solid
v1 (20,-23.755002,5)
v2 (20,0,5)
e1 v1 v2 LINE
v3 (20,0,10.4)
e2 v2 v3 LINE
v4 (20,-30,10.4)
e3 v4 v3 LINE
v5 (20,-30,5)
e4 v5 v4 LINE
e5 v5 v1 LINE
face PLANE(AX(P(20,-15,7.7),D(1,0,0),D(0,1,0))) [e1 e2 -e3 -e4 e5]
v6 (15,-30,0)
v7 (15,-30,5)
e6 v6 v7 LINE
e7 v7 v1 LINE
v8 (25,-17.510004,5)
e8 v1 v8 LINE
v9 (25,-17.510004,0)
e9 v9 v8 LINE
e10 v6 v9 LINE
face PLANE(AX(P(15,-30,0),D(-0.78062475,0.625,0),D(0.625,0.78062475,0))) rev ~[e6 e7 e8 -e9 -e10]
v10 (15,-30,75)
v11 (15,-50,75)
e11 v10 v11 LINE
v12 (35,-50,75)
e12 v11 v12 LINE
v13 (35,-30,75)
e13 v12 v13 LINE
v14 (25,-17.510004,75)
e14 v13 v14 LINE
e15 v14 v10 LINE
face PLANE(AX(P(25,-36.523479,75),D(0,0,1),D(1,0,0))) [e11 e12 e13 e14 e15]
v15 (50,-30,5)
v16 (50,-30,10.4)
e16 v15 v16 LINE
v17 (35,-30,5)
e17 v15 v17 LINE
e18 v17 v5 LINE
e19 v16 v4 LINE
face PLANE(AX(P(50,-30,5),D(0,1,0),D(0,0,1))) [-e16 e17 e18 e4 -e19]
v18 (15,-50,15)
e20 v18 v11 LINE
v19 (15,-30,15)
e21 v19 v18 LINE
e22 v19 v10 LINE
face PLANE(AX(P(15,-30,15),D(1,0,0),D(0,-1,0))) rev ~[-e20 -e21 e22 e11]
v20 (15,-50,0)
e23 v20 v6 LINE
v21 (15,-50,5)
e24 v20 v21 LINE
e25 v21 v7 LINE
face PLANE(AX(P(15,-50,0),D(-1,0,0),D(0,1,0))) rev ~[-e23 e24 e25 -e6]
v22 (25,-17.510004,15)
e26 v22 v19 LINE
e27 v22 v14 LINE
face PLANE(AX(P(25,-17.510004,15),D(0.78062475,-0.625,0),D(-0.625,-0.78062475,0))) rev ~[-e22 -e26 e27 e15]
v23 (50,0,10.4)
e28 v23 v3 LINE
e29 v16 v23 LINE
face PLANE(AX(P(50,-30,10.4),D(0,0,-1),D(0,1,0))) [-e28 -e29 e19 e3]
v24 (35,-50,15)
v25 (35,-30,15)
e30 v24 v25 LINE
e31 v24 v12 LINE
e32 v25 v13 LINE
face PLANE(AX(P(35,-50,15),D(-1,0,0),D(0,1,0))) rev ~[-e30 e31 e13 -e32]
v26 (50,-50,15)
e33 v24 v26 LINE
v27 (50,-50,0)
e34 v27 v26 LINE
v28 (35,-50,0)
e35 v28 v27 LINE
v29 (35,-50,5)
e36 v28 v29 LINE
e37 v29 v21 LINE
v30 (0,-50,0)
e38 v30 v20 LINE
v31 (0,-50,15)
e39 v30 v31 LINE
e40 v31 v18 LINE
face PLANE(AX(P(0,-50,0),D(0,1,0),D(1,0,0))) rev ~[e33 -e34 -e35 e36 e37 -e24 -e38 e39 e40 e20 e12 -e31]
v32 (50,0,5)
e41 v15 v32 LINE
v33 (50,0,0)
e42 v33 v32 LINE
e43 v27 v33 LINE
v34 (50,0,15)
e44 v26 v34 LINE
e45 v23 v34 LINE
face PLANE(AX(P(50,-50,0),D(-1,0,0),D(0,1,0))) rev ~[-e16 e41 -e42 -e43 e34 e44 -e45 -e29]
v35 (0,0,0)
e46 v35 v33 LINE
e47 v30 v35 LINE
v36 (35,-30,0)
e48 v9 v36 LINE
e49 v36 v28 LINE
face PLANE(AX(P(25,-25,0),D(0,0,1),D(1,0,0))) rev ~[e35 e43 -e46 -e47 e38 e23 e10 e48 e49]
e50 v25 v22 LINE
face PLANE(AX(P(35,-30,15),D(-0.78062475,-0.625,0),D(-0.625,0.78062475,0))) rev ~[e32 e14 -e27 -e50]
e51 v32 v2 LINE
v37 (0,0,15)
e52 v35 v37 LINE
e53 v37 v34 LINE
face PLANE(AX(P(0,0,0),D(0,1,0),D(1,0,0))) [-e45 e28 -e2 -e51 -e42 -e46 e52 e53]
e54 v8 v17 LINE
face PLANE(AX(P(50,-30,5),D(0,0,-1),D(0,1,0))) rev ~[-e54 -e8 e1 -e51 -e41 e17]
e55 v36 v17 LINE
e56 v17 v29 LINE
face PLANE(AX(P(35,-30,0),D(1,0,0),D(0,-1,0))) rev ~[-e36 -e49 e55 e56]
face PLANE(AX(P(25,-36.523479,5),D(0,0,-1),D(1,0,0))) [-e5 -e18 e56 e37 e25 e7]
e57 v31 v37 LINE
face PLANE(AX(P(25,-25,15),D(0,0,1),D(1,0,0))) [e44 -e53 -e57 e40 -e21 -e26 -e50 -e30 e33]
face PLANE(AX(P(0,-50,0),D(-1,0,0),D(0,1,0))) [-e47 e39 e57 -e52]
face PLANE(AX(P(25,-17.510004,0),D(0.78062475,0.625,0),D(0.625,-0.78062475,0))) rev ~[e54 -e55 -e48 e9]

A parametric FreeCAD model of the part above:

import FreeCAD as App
import Part
import Sketcher

doc = App.newDocument("Part")
params = doc.addObject("Spreadsheet::Sheet", "Params")
for row, (alias, value) in enumerate([
    ("sketch1_width", "50 mm"),
    ("pad1_length", "15 mm"),
    ("sketch2_width", "20 mm"),
    ("sketch2_length", "16 mm"),
    ("pad2_length", "60 mm"),
    ("sketch3_width", "20 mm"),
    ("sketch3_length", "16 mm"),
    ("pocket1_length", "5 mm"),
    ("sketch4_width", "30 mm"),
    ("sketch4_height", "5.4 mm"),
    ("pocket2_length", "30 mm"),
], start=1):
    params.set(f"A{row}", alias)
    params.set(f"B{row}", "=" + value)
    params.setAlias(f"B{row}", alias)

body = doc.addObject("PartDesign::Body", "Body")

# Sketch on XY plane
sketch1 = body.newObject("Sketcher::SketchObject", "Sketch")
sketch1.AttachmentSupport = (doc.getObject("XY_Plane"), [""])
sketch1.MapMode = "FlatFace"
sketch1.addGeometry([
    Part.LineSegment(App.Vector(0, 0, 0), App.Vector(0, -50, 0)),
    Part.LineSegment(App.Vector(0, -50, 0), App.Vector(50, -50, 0)),
    Part.LineSegment(App.Vector(50, -50, 0), App.Vector(50, 0, 0)),
    Part.LineSegment(App.Vector(50, 0, 0), App.Vector(0, 0, 0)),
], False)
sketch1.addConstraint([
    Sketcher.Constraint("Coincident", 0, 2, 1, 1),
    Sketcher.Constraint("Coincident", 1, 2, 2, 1),
    Sketcher.Constraint("Coincident", 2, 2, 3, 1),
    Sketcher.Constraint("Coincident", 3, 2, 0, 1),
    Sketcher.Constraint("Vertical", 0),
    Sketcher.Constraint("Horizontal", 1),
    Sketcher.Constraint("Vertical", 2),
    Sketcher.Constraint("Horizontal", 3),
    Sketcher.Constraint("Coincident", 3, 2, -1, 1),
    Sketcher.Constraint("Equal", 3, 0),
    Sketcher.Constraint("DistanceX", 1, 1, 1, 2, 50.0),
])
sketch1.setExpression("Constraints[10]", "Params.sketch1_width")
pad1 = body.newObject("PartDesign::Pad", "Pad")
pad1.Profile = sketch1
pad1.setExpression("Length", "Params.pad1_length")

# Sketch on XY plane
sketch2 = body.newObject("Sketcher::SketchObject", "Sketch001")
sketch2.AttachmentSupport = (doc.getObject("XY_Plane"), [""])
sketch2.MapMode = "FlatFace"
sketch2.AttachmentOffset = App.Placement(App.Vector(0, 0, 15), App.Rotation())
sketch2.addGeometry([
    Part.LineSegment(App.Vector(15, -30, 0), App.Vector(15, -50, 0)),  # 0
    Part.LineSegment(App.Vector(15, -50, 0), App.Vector(35, -50, 0)),  # 1
    Part.LineSegment(App.Vector(35, -50, 0), App.Vector(35, -30, 0)),  # 2
    Part.LineSegment(App.Vector(35, -30, 0), App.Vector(25, -18, 0)),  # 3
    Part.LineSegment(App.Vector(25, -18, 0), App.Vector(15, -30, 0)),  # 4
], False)
sketch2.addConstraint([
    Sketcher.Constraint("Coincident", 0, 2, 1, 1),
    Sketcher.Constraint("Coincident", 1, 2, 2, 1),
    Sketcher.Constraint("Coincident", 2, 2, 3, 1),
    Sketcher.Constraint("Coincident", 3, 2, 4, 1),
    Sketcher.Constraint("Coincident", 4, 2, 0, 1),
    Sketcher.Constraint("Vertical", 0),
    Sketcher.Constraint("Horizontal", 1),
    Sketcher.Constraint("Vertical", 2),
    Sketcher.Constraint("Horizontal", 2, 2, 4, 2),
    Sketcher.Constraint("Equal", 1, 0),
    Sketcher.Constraint("Equal", 3, 4),
    Sketcher.Constraint("DistanceX", 1, 1, 1, 2, 20.0),
    Sketcher.Constraint("Distance", 3, 16.0),
    Sketcher.Constraint("DistanceX", -1, 1, 0, 2, 15.0),
    Sketcher.Constraint("DistanceY", 0, 2, -1, 1, 50.0),
])
sketch2.setExpression("Constraints[11]", "Params.sketch2_width")
sketch2.setExpression("Constraints[12]", "Params.sketch2_length")
pad2 = body.newObject("PartDesign::Pad", "Pad001")
pad2.Profile = sketch2
pad2.setExpression("Length", "Params.pad2_length")

# Sketch on XY plane
sketch3 = body.newObject("Sketcher::SketchObject", "Sketch002")
sketch3.AttachmentSupport = (doc.getObject("XY_Plane"), [""])
sketch3.MapMode = "FlatFace"
sketch3.addGeometry([
    Part.LineSegment(App.Vector(35, -50, 0), App.Vector(15, -50, 0)),  # 0
    Part.LineSegment(App.Vector(15, -50, 0), App.Vector(15, -30, 0)),  # 1
    Part.LineSegment(App.Vector(15, -30, 0), App.Vector(25, -18, 0)),  # 2
    Part.LineSegment(App.Vector(25, -18, 0), App.Vector(35, -30, 0)),  # 3
    Part.LineSegment(App.Vector(35, -30, 0), App.Vector(35, -50, 0)),  # 4
], False)
sketch3.addConstraint([
    Sketcher.Constraint("Coincident", 0, 2, 1, 1),
    Sketcher.Constraint("Coincident", 1, 2, 2, 1),
    Sketcher.Constraint("Coincident", 2, 2, 3, 1),
    Sketcher.Constraint("Coincident", 3, 2, 4, 1),
    Sketcher.Constraint("Coincident", 4, 2, 0, 1),
    Sketcher.Constraint("Horizontal", 0),
    Sketcher.Constraint("Vertical", 1),
    Sketcher.Constraint("Vertical", 4),
    Sketcher.Constraint("Horizontal", 1, 2, 3, 2),
    Sketcher.Constraint("Equal", 0, 1),
    Sketcher.Constraint("Equal", 2, 3),
    Sketcher.Constraint("DistanceX", 0, 2, 0, 1, 20.0),
    Sketcher.Constraint("Distance", 2, 16.0),
    Sketcher.Constraint("DistanceX", -1, 1, 0, 2, 15.0),
    Sketcher.Constraint("DistanceY", 0, 2, -1, 1, 50.0),
])
sketch3.setExpression("Constraints[11]", "Params.sketch3_width")
sketch3.setExpression("Constraints[12]", "Params.sketch3_length")
pocket1 = body.newObject("PartDesign::Pocket", "Pocket")
pocket1.Profile = sketch3
pocket1.setExpression("Length", "Params.pocket1_length")
pocket1.Reversed = True

# Sketch on YZ plane
sketch4 = body.newObject("Sketcher::SketchObject", "Sketch003")
sketch4.AttachmentSupport = (doc.getObject("YZ_Plane"), [""])
sketch4.MapMode = "FlatFace"
sketch4.AttachmentOffset = App.Placement(App.Vector(0, 0, 50), App.Rotation())
sketch4.addGeometry([
    Part.LineSegment(App.Vector(-30, 10, 0), App.Vector(-30, 5, 0)),
    Part.LineSegment(App.Vector(-30, 5, 0), App.Vector(0, 5, 0)),
    Part.LineSegment(App.Vector(0, 5, 0), App.Vector(0, 10, 0)),
    Part.LineSegment(App.Vector(0, 10, 0), App.Vector(-30, 10, 0)),
], False)
sketch4.addConstraint([
    Sketcher.Constraint("Coincident", 0, 2, 1, 1),
    Sketcher.Constraint("Coincident", 1, 2, 2, 1),
    Sketcher.Constraint("Coincident", 2, 2, 3, 1),
    Sketcher.Constraint("Coincident", 3, 2, 0, 1),
    Sketcher.Constraint("Vertical", 0),
    Sketcher.Constraint("Horizontal", 1),
    Sketcher.Constraint("Vertical", 2),
    Sketcher.Constraint("Horizontal", 3),
    Sketcher.Constraint("PointOnObject", 1, 2, -2),
    Sketcher.Constraint("DistanceX", 1, 1, 1, 2, 30.0),
    Sketcher.Constraint("DistanceY", 0, 2, 0, 1, 5.4),
    Sketcher.Constraint("DistanceY", -1, 1, 0, 2, 5.0),
])
sketch4.setExpression("Constraints[9]", "Params.sketch4_width")
sketch4.setExpression("Constraints[10]", "Params.sketch4_height")
pocket2 = body.newObject("PartDesign::Pocket", "Pocket001")
pocket2.Profile = sketch4
pocket2.setExpression("Length", "Params.pocket2_length")

doc.recompute()
